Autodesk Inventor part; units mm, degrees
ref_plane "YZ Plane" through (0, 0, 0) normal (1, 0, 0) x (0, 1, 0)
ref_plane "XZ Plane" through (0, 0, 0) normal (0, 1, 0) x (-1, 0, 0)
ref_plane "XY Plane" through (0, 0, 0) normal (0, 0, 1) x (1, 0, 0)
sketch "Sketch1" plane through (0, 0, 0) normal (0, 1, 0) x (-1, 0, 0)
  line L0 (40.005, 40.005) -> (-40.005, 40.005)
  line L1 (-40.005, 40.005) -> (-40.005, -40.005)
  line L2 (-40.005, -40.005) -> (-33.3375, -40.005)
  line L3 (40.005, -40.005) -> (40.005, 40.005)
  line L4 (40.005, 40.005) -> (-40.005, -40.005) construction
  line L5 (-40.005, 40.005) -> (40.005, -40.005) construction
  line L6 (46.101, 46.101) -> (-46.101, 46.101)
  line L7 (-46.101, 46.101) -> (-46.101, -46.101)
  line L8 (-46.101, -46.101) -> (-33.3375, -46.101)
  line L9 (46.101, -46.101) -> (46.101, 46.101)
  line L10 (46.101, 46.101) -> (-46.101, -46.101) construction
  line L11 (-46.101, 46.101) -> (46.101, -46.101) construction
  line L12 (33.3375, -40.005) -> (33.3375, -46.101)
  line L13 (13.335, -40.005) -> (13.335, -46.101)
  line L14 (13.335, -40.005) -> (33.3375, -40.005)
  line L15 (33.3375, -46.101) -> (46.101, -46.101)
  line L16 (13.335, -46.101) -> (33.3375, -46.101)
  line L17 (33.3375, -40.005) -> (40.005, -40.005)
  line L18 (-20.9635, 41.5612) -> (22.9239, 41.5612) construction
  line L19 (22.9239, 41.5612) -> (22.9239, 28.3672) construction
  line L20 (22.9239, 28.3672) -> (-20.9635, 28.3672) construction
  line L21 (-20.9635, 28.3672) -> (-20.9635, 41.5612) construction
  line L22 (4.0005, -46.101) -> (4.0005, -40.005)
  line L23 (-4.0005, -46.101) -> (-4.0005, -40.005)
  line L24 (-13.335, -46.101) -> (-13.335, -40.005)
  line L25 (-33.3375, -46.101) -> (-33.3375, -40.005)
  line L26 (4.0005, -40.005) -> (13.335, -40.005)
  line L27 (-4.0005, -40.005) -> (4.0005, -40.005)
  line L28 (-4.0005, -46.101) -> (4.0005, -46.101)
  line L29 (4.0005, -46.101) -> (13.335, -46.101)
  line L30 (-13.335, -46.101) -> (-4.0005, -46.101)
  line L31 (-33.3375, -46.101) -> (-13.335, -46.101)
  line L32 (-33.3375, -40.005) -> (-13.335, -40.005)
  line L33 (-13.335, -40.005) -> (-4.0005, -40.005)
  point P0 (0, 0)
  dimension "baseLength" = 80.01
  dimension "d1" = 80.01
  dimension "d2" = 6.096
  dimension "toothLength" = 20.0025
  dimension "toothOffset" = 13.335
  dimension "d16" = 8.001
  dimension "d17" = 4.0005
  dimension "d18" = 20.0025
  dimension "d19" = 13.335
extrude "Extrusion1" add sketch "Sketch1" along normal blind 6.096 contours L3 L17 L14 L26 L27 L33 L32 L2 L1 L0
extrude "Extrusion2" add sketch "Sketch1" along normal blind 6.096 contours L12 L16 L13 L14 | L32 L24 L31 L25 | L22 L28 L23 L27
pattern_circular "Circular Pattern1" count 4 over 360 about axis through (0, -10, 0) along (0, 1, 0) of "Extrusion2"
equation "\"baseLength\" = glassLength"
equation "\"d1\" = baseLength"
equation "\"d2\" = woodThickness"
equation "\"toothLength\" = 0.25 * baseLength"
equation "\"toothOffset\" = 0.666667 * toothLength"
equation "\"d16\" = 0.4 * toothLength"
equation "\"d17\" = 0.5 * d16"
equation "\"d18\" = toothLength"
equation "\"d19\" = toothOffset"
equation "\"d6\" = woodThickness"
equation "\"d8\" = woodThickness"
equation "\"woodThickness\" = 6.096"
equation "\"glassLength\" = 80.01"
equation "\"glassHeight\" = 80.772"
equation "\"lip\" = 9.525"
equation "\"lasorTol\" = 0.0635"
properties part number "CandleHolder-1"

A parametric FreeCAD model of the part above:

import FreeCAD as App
import Part
import Sketcher
from FreeCAD import Vector
Q = App.Units.Quantity


def add_polygon(sketch, points):
    """Adds a closed chain of lines whose ends are joined by coincident constraints."""
    first, n = sketch.GeometryCount, len(points)
    for a, b in zip(points, points[1:] + points[:1]):
        sketch.addGeometry(Part.LineSegment(App.Vector(*a, 0), App.Vector(*b, 0)), False)
    for i in range(n):
        sketch.addConstraint(Sketcher.Constraint("Coincident", first + i, 2, first + (i + 1) % n, 1))

doc = App.newDocument("Part")
body = doc.addObject("PartDesign::Body", "Body")

sketch1 = body.newObject("Sketcher::SketchObject", "Sketch")
sketch1.AttachmentSupport = (doc.getObject("XZ_Plane"), [""])
sketch1.MapMode = "FlatFace"
add_polygon(sketch1, [(-40, -40), (-40, 40), (40, 40), (40, -40)])
sketch1.addConstraint([
    Sketcher.Constraint("Vertical", 0),
    Sketcher.Constraint("Horizontal", 1),
    Sketcher.Constraint("Vertical", 2),
    Sketcher.Constraint("Horizontal", 3),
    Sketcher.Constraint("Symmetric", 0, 2, 2, 2, -1, 1),
    Sketcher.Constraint("Equal", 3, 0),
    Sketcher.Constraint("DistanceX", 1, 1, 1, 2, Q("3.15 in")),
])
pad1 = body.newObject("PartDesign::Pad", "Pad")
pad1.Profile = sketch1
pad1.Length = Q("0.24 in")
pad1.Reversed = True

sketch2 = body.newObject("Sketcher::SketchObject", "Sketch001")
sketch2.AttachmentSupport = (doc.getObject("XZ_Plane"), [""])
sketch2.MapMode = "FlatFace"
add_polygon(sketch2, [(-33, -46), (-33, -40), (-13, -40), (-13, -46)])
add_polygon(sketch2, [(13, -40), (33, -40), (33, -46), (13, -46)])
add_polygon(sketch2, [(-4, -46), (-4, -40), (4, -40), (4, -46)])
sketch2.addConstraint([
    Sketcher.Constraint("Vertical", 0),
    Sketcher.Constraint("Horizontal", 1),
    Sketcher.Constraint("Vertical", 2),
    Sketcher.Constraint("Horizontal", 3),
    Sketcher.Constraint("Horizontal", 4),
    Sketcher.Constraint("Vertical", 5),
    Sketcher.Constraint("Horizontal", 6),
    Sketcher.Constraint("Vertical", 7),
    Sketcher.Constraint("Vertical", 8),
    Sketcher.Constraint("Horizontal", 9),
    Sketcher.Constraint("Vertical", 10),
    Sketcher.Constraint("Horizontal", 11),
    Sketcher.Constraint("Symmetric", 0, 2, 4, 2, -2),
    Sketcher.Constraint("Symmetric", 2, 2, 6, 2, -2),
    Sketcher.Constraint("Horizontal", 7, 2, 8, 2),
    Sketcher.Constraint("Horizontal", 6, 2, 10, 2),
    Sketcher.Constraint("DistanceY", 0, 1, 0, 2, Q("0.24 in")),
    Sketcher.Constraint("DistanceX", 9, 1, 9, 2, Q("0.315 in")),
    Sketcher.Constraint("DistanceX", 1, 1, 1, 2, Q("0.7875 in")),
    Sketcher.Constraint("DistanceX", 1, 2, -1, 1, Q("0.525 in")),
    Sketcher.Constraint("DistanceX", 8, 2, -1, 1, Q("0.1575 in")),
    Sketcher.Constraint("DistanceY", 0, 2, -1, 1, Q("1.575 in")),
])
pad2 = body.newObject("PartDesign::Pad", "Pad001")
pad2.Profile = sketch2
pad2.Length = Q("0.24 in")
pad2.Reversed = True
doc.recompute()

polarpattern = body.newObject("PartDesign::PolarPattern", "PolarPattern")
polarpattern.Originals = [pad2]
polarpattern.Axis = (doc.getObject("Y_Axis"), [""])
polarpattern.Angle = 360
polarpattern.Occurrences = 4
body.Tip = polarpattern

doc.recompute()
